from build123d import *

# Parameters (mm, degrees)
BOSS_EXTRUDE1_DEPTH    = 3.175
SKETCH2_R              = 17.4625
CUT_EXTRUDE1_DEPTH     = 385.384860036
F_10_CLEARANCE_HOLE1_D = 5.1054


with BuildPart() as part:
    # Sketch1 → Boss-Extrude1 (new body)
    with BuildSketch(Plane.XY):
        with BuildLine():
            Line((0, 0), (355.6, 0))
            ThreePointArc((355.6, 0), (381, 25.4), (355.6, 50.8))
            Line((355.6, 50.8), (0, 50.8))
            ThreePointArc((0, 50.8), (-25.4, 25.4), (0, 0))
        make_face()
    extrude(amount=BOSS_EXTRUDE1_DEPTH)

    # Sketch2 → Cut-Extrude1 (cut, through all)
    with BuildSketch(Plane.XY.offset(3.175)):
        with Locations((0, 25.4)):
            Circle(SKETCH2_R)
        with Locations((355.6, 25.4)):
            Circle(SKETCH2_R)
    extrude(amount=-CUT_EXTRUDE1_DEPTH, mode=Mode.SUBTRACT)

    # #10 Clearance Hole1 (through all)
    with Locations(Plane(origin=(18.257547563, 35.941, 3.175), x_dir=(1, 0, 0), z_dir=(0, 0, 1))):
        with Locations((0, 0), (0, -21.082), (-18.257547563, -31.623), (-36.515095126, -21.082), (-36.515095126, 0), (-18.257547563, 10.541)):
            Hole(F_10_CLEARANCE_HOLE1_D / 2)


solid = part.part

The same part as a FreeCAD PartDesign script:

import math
import FreeCAD as App
import Part
import Sketcher

V = App.Vector
Q = App.Units.Quantity

doc = App.newDocument("Part")
params = doc.addObject("Spreadsheet::Sheet", "Params")
for row, (alias, value) in enumerate([
    ("sketch1_radius", "1 in"),
    ("sketch1_width", "14 in"),
    ("pad1_length", "0.125 in"),
    ("sketch2_diameter", "1.375 in"),
    ("sketch3_diameter", "0.201 in"),
    ("hole_diameter", "0.201 in"),
], start=1):
    params.set(f"A{row}", alias)
    params.set(f"B{row}", "=" + value)
    params.setAlias(f"B{row}", alias)

body = doc.addObject("PartDesign::Body", "Body")

sketch1 = body.newObject("Sketcher::SketchObject", "Sketch")
sketch1.AttachmentSupport = (doc.getObject("XY_Plane"), [""])
sketch1.MapMode = "FlatFace"
sketch1.addGeometry([
    Part.LineSegment(V(0, 0, 0), V(356, 0, 0)),
    Part.ArcOfCircle(Part.Circle(V(356, 25, 0), V(0, 0, 1), 25), math.radians(-90), math.radians(90)),
    Part.LineSegment(V(356, 51, 0), V(0, 51, 0)),
    Part.ArcOfCircle(Part.Circle(V(0, 25, 0), V(0, 0, 1), 25), math.radians(90), math.radians(270)),
], False)
sketch1.addConstraint([
    Sketcher.Constraint("Tangent", 0, 2, 1, 1),
    Sketcher.Constraint("Tangent", 1, 2, 2, 1),
    Sketcher.Constraint("Tangent", 2, 2, 3, 1),
    Sketcher.Constraint("Tangent", 3, 2, 0, 1),
    Sketcher.Constraint("Horizontal", 0),
    Sketcher.Constraint("Horizontal", 2),
    Sketcher.Constraint("Coincident", 3, 2, -1, 1),
    Sketcher.Constraint("Radius", 1, Q("1 in")),
    Sketcher.Constraint("DistanceX", 0, 1, 0, 2, Q("14 in")),
])
sketch1.setExpression("Constraints[7]", "Params.sketch1_radius")
sketch1.setExpression("Constraints[8]", "Params.sketch1_width")
pad1 = body.newObject("PartDesign::Pad", "Pad")
pad1.Profile = sketch1
pad1.setExpression("Length", "Params.pad1_length")

sketch2 = body.newObject("Sketcher::SketchObject", "Sketch001")
sketch2.AttachmentSupport = (doc.getObject("XY_Plane"), [""])
sketch2.MapMode = "FlatFace"
sketch2.AttachmentOffset = App.Placement(V(0, 0, 0.125 * 25.4), App.Rotation())
sketch2.addGeometry([
    Part.Circle(V(0, 25, 0), V(0, 0, 1), 17),
    Part.Circle(V(356, 25, 0), V(0, 0, 1), 17),
], False)
sketch2.addConstraint([
    Sketcher.Constraint("Equal", 0, 1),
    Sketcher.Constraint("PointOnObject", 0, 3, -2),
    Sketcher.Constraint("Horizontal", 0, 3, 1, 3),
    Sketcher.Constraint("Diameter", 0, Q("1.375 in")),
    Sketcher.Constraint("DistanceY", -1, 1, 0, 3, Q("1 in")),
    Sketcher.Constraint("DistanceX", -1, 1, 1, 3, Q("14 in")),
])
sketch2.setExpression("Constraints[3]", "Params.sketch2_diameter")
pocket1 = body.newObject("PartDesign::Pocket", "Pocket")
pocket1.Profile = sketch2
pocket1.Type = "ThroughAll"

sketch3 = body.newObject("Sketcher::SketchObject", "Sketch002")
sketch3.AttachmentSupport = (doc.getObject("XY_Plane"), [""])
sketch3.MapMode = "FlatFace"
sketch3.AttachmentOffset = App.Placement(V(0, 0, 0.125 * 25.4), App.Rotation())
sketch3.addGeometry([
    Part.Circle(V(18.3, 35.9, 0), V(0, 0, 1), 2.6),
    Part.Circle(V(18.3, 14.9, 0), V(0, 0, 1), 2.6),
    Part.Circle(V(0, 4.3, 0), V(0, 0, 1), 2.6),
    Part.Circle(V(-18.3, 14.9, 0), V(0, 0, 1), 2.6),
    Part.Circle(V(-18.3, 35.9, 0), V(0, 0, 1), 2.6),
    Part.Circle(V(0, 46.5, 0), V(0, 0, 1), 2.6),
], False)
sketch3.addConstraint([
    Sketcher.Constraint("Equal", 0, 1),
    Sketcher.Constraint("Equal", 1, 2),
    Sketcher.Constraint("Equal", 2, 3),
    Sketcher.Constraint("Equal", 3, 4),
    Sketcher.Constraint("Equal", 4, 5),
    Sketcher.Constraint("Symmetric", 1, 3, 3, 3, -2),
    Sketcher.Constraint("Symmetric", 0, 3, 4, 3, -2),
    Sketcher.Constraint("PointOnObject", 2, 3, -2),
    Sketcher.Constraint("PointOnObject", 5, 3, -2),
    Sketcher.Constraint("Vertical", 0, 3, 1, 3),
    Sketcher.Constraint("Diameter", 0, Q("0.201 in")),
    Sketcher.Constraint("DistanceY", -1, 1, 2, 3, Q("0.17 in")),
    Sketcher.Constraint("DistanceY", -1, 1, 5, 3, Q("1.83 in")),
    Sketcher.Constraint("DistanceY", 1, 3, 0, 3, Q("0.83 in")),
    Sketcher.Constraint("DistanceY", -1, 1, 0, 3, Q("1.415 in")),
    Sketcher.Constraint("DistanceX", -1, 1, 0, 3, Q("18.257548 mm")),
])
sketch3.setExpression("Constraints[10]", "Params.sketch3_diameter")
doc.recompute()
hole = body.newObject("PartDesign::Hole", "Hole")
hole.Profile = sketch3
hole.ThreadType = "None"
hole.setExpression("Diameter", "Params.hole_diameter")
hole.DepthType = "ThroughAll"

doc.recompute()
